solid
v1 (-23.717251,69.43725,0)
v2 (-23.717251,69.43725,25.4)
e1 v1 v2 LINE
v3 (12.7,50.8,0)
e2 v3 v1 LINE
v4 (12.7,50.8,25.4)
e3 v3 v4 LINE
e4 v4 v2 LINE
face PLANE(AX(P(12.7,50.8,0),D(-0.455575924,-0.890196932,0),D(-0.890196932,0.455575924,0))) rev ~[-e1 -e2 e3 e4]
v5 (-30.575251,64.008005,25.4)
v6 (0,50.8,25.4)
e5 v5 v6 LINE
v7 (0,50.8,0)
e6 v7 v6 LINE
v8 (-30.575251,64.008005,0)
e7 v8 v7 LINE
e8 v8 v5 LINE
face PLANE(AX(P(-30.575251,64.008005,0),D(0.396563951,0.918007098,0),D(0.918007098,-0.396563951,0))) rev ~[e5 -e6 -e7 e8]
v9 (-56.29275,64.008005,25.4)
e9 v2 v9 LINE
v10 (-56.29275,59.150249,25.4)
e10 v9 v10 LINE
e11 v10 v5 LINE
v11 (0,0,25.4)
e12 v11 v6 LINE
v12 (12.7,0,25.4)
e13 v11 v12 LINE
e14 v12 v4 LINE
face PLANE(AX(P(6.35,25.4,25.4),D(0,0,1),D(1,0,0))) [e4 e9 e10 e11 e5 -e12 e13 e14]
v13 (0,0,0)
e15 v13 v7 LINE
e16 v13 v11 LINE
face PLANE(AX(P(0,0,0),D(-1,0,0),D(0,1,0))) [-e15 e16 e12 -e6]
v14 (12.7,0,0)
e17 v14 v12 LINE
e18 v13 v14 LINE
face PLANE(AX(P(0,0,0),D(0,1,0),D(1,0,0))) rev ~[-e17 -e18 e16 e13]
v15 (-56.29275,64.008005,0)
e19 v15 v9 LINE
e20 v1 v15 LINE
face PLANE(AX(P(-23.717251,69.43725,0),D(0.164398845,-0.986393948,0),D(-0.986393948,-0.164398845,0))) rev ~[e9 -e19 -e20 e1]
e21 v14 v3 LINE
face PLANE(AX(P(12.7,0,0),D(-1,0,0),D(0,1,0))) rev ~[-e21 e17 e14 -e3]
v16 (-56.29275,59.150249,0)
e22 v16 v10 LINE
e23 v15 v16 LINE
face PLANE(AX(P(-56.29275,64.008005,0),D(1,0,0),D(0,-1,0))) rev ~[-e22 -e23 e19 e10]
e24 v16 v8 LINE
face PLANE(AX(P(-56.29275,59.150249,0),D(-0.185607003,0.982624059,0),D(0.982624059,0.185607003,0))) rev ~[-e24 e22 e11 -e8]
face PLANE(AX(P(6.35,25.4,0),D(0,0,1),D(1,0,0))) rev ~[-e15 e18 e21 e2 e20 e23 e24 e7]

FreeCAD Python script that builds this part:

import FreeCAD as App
import Part
import Sketcher
Q = App.Units.Quantity

doc = App.newDocument("Part")
body = doc.addObject("PartDesign::Body", "Body")

# Sketch on XY plane
sketch1 = body.newObject("Sketcher::SketchObject", "Sketch")
sketch1.AttachmentSupport = (doc.getObject("XY_Plane"), [""])
sketch1.MapMode = "FlatFace"
sketch1.addGeometry([
    Part.LineSegment(App.Vector(0, 50.8, 0), App.Vector(0, 0, 0)),  # 0
    Part.LineSegment(App.Vector(0, 0, 0), App.Vector(12.7, 0, 0)),  # 1
    Part.LineSegment(App.Vector(12.7, 0, 0), App.Vector(12.7, 50.8, 0)),  # 2
    Part.LineSegment(App.Vector(12.7, 50.8, 0), App.Vector(-23.7, 69.4, 0)),  # 3
    Part.LineSegment(App.Vector(-23.7, 69.4, 0), App.Vector(-56.3, 64, 0)),  # 4
    Part.LineSegment(App.Vector(-56.3, 64, 0), App.Vector(-56.3, 59.2, 0)),  # 5
    Part.LineSegment(App.Vector(-56.3, 59.2, 0), App.Vector(-30.6, 64, 0)),  # 6
    Part.LineSegment(App.Vector(-30.6, 64, 0), App.Vector(0, 50.8, 0)),  # 7
], False)
sketch1.addConstraint([
    Sketcher.Constraint("Coincident", 0, 2, 1, 1),
    Sketcher.Constraint("Coincident", 1, 2, 2, 1),
    Sketcher.Constraint("Coincident", 2, 2, 3, 1),
    Sketcher.Constraint("Coincident", 3, 2, 4, 1),
    Sketcher.Constraint("Coincident", 4, 2, 5, 1),
    Sketcher.Constraint("Coincident", 5, 2, 6, 1),
    Sketcher.Constraint("Coincident", 6, 2, 7, 1),
    Sketcher.Constraint("Coincident", 7, 2, 0, 1),
    Sketcher.Constraint("Vertical", 0),
    Sketcher.Constraint("Horizontal", 1),
    Sketcher.Constraint("Vertical", 2),
    Sketcher.Constraint("Vertical", 5),
    Sketcher.Constraint("Coincident", 0, 2, -1, 1),
    Sketcher.Constraint("Horizontal", 4, 2, 6, 2),
    Sketcher.Constraint("Horizontal", 2, 2, 7, 2),
    Sketcher.Constraint("DistanceY", 0, 2, 0, 1, Q("2 in")),
    Sketcher.Constraint("DistanceX", 1, 1, 1, 2, Q("0.5 in")),
    Sketcher.Constraint("DistanceY", -1, 1, 4, 2, Q("2.5200002 in")),
    Sketcher.Constraint("DistanceX", 6, 2, 3, 2, Q("0.27 in")),
    Sketcher.Constraint("DistanceY", 5, 2, 3, 2, Q("0.405 in")),
    Sketcher.Constraint("DistanceX", 4, 2, 3, 2, Q("1.2825 in")),
    Sketcher.Constraint("DistanceY", 5, 2, 5, 1, Q("4.857756 mm")),
    Sketcher.Constraint("DistanceX", 3, 2, -1, 1, Q("23.717251 mm")),
])
pad1 = body.newObject("PartDesign::Pad", "Pad")
pad1.Profile = sketch1
pad1.Length = Q("1 in")

doc.recompute()
